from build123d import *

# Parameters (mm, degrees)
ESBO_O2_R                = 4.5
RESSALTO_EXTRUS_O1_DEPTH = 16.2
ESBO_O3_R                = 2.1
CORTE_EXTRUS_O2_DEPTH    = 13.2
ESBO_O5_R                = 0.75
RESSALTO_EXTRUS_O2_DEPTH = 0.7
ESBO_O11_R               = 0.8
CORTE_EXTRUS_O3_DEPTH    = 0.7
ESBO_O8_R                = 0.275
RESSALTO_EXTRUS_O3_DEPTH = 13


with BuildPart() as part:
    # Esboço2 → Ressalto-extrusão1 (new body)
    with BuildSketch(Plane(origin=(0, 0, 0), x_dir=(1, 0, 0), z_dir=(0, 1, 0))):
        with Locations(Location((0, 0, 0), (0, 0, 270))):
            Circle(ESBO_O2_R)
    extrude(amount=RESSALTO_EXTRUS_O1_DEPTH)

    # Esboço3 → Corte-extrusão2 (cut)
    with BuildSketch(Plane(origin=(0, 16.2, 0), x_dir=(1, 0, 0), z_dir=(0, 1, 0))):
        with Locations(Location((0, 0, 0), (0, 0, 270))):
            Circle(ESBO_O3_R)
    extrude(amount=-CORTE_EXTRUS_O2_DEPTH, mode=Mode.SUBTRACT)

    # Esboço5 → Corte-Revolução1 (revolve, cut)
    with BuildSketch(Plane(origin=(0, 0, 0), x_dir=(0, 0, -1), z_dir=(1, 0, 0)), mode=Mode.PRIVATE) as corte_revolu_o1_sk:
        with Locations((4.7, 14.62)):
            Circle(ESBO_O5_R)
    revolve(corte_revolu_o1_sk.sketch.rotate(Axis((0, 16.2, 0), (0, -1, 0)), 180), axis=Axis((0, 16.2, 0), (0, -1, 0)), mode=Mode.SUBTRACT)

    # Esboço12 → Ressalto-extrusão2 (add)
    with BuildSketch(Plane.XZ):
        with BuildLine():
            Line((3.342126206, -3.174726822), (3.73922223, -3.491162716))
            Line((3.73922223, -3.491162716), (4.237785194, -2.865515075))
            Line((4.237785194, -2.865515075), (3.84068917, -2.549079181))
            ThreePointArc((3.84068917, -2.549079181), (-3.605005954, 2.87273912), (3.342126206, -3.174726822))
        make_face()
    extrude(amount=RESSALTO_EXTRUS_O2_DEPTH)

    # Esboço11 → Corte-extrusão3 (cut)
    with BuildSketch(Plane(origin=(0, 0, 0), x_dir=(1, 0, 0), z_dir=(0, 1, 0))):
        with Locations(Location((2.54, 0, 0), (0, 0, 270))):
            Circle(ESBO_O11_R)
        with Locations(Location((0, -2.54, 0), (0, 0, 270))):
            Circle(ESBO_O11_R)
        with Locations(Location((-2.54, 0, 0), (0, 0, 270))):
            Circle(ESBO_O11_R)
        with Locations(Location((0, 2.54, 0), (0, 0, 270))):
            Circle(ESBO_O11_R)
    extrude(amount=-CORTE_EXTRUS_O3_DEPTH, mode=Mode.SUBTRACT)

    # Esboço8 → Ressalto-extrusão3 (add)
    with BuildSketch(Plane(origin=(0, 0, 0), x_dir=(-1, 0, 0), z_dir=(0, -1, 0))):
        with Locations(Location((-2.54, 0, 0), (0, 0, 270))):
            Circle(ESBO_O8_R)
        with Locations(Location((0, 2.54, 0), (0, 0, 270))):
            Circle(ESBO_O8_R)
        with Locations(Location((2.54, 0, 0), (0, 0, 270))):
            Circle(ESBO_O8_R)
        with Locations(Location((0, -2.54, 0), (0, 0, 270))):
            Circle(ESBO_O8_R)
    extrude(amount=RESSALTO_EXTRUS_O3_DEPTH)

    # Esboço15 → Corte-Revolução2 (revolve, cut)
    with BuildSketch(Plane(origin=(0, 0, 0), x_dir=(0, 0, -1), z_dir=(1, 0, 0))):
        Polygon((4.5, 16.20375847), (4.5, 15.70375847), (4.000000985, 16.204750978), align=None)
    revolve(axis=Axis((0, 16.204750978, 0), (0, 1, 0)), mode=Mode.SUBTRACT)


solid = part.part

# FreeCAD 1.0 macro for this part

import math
import FreeCAD as App
import Part
import Sketcher

V = App.Vector
Q = App.Units.Quantity

doc = App.newDocument("Part")
params = doc.addObject("Spreadsheet::Sheet", "Params")
for row, (alias, value) in enumerate([
    ("sketch1_diameter", "9 mm"),
    ("pad1_length", "16.2 mm"),
    ("sketch2_diameter", "4.2 mm"),
    ("pocket1_length", "13.2 mm"),
    ("sketch3_diameter", "1.5 mm"),
    ("groove_angle", "360 deg"),
    ("sketch4_length", "0.8 mm"),
    ("pad2_length", "0.7 mm"),
    ("sketch5_diameter", "1.6 mm"),
    ("pocket2_length", "0.7 mm"),
    ("sketch6_diameter", "0.55 mm"),
    ("pad3_length", "13 mm"),
    ("sketch7_width", "0.5 mm"),
    ("sketch7_length", "0.5 mm"),
    ("groove2_angle", "360 deg"),
], start=1):
    params.set(f"A{row}", alias)
    params.set(f"B{row}", "=" + value)
    params.setAlias(f"B{row}", alias)

body = doc.addObject("PartDesign::Body", "Body")

sketch1 = body.newObject("Sketcher::SketchObject", "Sketch")
sketch1.AttachmentSupport = (doc.getObject("XZ_Plane"), [""])
sketch1.MapMode = "FlatFace"
sketch1.addGeometry(Part.Circle(V(0, 0, 0), V(0, 0, 1), 4.5), False)
sketch1.addConstraint([
    Sketcher.Constraint("Coincident", 0, 3, -1, 1),
    Sketcher.Constraint("Diameter", 0, Q("9 mm")),
])
sketch1.setExpression("Constraints[1]", "Params.sketch1_diameter")
pad1 = body.newObject("PartDesign::Pad", "Pad")
pad1.Profile = sketch1
pad1.setExpression("Length", "Params.pad1_length")
pad1.Reversed = True

sketch2 = body.newObject("Sketcher::SketchObject", "Sketch001")
sketch2.AttachmentSupport = (doc.getObject("XZ_Plane"), [""])
sketch2.MapMode = "FlatFace"
sketch2.AttachmentOffset = App.Placement(V(0, 0, -16.2), App.Rotation())
sketch2.addGeometry(Part.Circle(V(0, 0, 0), V(0, 0, 1), 2.1), False)
sketch2.addConstraint([
    Sketcher.Constraint("Coincident", 0, 3, -1, 1),
    Sketcher.Constraint("Diameter", 0, Q("4.2 mm")),
])
sketch2.setExpression("Constraints[1]", "Params.sketch2_diameter")
pocket1 = body.newObject("PartDesign::Pocket", "Pocket")
pocket1.Profile = sketch2
pocket1.setExpression("Length", "Params.pocket1_length")
pocket1.Reversed = True

sketch3 = body.newObject("Sketcher::SketchObject", "Sketch002")
sketch3.AttachmentSupport = (doc.getObject("YZ_Plane"), [""])
sketch3.MapMode = "FlatFace"
sketch3.addGeometry(Part.Circle(V(14.62, -4.7, 0), V(0, 0, 1), 0.75), False)
sketch3.addConstraint([
    Sketcher.Constraint("Diameter", 0, Q("1.5 mm")),
    Sketcher.Constraint("DistanceY", 0, 3, -1, 1, Q("4.7 mm")),
    Sketcher.Constraint("DistanceX", -1, 1, 0, 3, Q("14.62 mm")),
])
sketch3.setExpression("Constraints[0]", "Params.sketch3_diameter")
groove = body.newObject("PartDesign::Groove", "Groove")
groove.Profile = sketch3
groove.ReferenceAxis = (sketch3, ["H_Axis"])
groove.setExpression("Angle", "Params.groove_angle")

sketch4 = body.newObject("Sketcher::SketchObject", "Sketch003")
sketch4.AttachmentSupport = (doc.getObject("XZ_Plane"), [""])
sketch4.MapMode = "FlatFace"
sketch4.addGeometry([
    Part.LineSegment(V(3.342126, -3.174727, 0), V(3.739222, -3.491163, 0)),
    Part.LineSegment(V(3.739222, -3.491163, 0), V(4.237785, -2.865515, 0)),
    Part.LineSegment(V(4.237785, -2.865515, 0), V(3.840689, -2.549079, 0)),
    Part.ArcOfCircle(Part.Circle(V(0, 0, 0), V(0, 0, 1), 4.609631), math.radians(-33.572372), math.radians(316.471442)),
], False)
sketch4.addConstraint([
    Sketcher.Constraint("Coincident", 0, 2, 1, 1),
    Sketcher.Constraint("Coincident", 1, 2, 2, 1),
    Sketcher.Constraint("Coincident", 2, 2, 3, 1),
    Sketcher.Constraint("Coincident", 3, 2, 0, 1),
    Sketcher.Constraint("Coincident", 3, 3, -1, 1),
    Sketcher.Constraint("Perpendicular", 0, 1),
    Sketcher.Constraint("Perpendicular", 1, 2),
    Sketcher.Constraint("Equal", 0, 2),
    Sketcher.Constraint("Distance", 1, Q("0.8 mm")),
    Sketcher.Constraint("Radius", 3, Q("4.609631 mm")),
    Sketcher.Constraint("DistanceX", -1, 1, 2, 2, Q("3.840689 mm")),
    Sketcher.Constraint("DistanceX", 3, 2, 1, 2, Q("0.895659 mm")),
])
sketch4.setExpression("Constraints[8]", "Params.sketch4_length")
pad2 = body.newObject("PartDesign::Pad", "Pad001")
pad2.Profile = sketch4
pad2.setExpression("Length", "Params.pad2_length")

sketch5 = body.newObject("Sketcher::SketchObject", "Sketch004")
sketch5.AttachmentSupport = (doc.getObject("XZ_Plane"), [""])
sketch5.MapMode = "FlatFace"
sketch5.addGeometry([
    Part.Circle(V(2.54, 0, 0), V(0, 0, 1), 0.8),
    Part.Circle(V(0, 2.54, 0), V(0, 0, 1), 0.8),
    Part.Circle(V(-2.54, 0, 0), V(0, 0, 1), 0.8),
    Part.Circle(V(0, -2.54, 0), V(0, 0, 1), 0.8),
], False)
sketch5.addConstraint([
    Sketcher.Constraint("Equal", 0, 1),
    Sketcher.Constraint("Equal", 1, 2),
    Sketcher.Constraint("Equal", 2, 3),
    Sketcher.Constraint("Symmetric", 0, 3, 2, 3, -1, 1),
    Sketcher.Constraint("Symmetric", 1, 3, 3, 3, -1, 1),
    Sketcher.Constraint("PointOnObject", 0, 3, -1),
    Sketcher.Constraint("PointOnObject", 1, 3, -2),
    Sketcher.Constraint("Diameter", 0, Q("1.6 mm")),
    Sketcher.Constraint("DistanceX", -1, 1, 0, 3, Q("2.54 mm")),
    Sketcher.Constraint("DistanceY", -1, 1, 1, 3, Q("2.54 mm")),
])
sketch5.setExpression("Constraints[7]", "Params.sketch5_diameter")
pocket2 = body.newObject("PartDesign::Pocket", "Pocket001")
pocket2.Profile = sketch5
pocket2.setExpression("Length", "Params.pocket2_length")
pocket2.Reversed = True

sketch6 = body.newObject("Sketcher::SketchObject", "Sketch005")
sketch6.AttachmentSupport = (doc.getObject("XZ_Plane"), [""])
sketch6.MapMode = "FlatFace"
sketch6.addGeometry([
    Part.Circle(V(2.54, 0, 0), V(0, 0, 1), 0.275),
    Part.Circle(V(0, -2.54, 0), V(0, 0, 1), 0.275),
    Part.Circle(V(-2.54, 0, 0), V(0, 0, 1), 0.275),
    Part.Circle(V(0, 2.54, 0), V(0, 0, 1), 0.275),
], False)
sketch6.addConstraint([
    Sketcher.Constraint("Equal", 0, 1),
    Sketcher.Constraint("Equal", 1, 2),
    Sketcher.Constraint("Equal", 2, 3),
    Sketcher.Constraint("Symmetric", 0, 3, 2, 3, -1, 1),
    Sketcher.Constraint("Symmetric", 1, 3, 3, 3, -1, 1),
    Sketcher.Constraint("PointOnObject", 0, 3, -1),
    Sketcher.Constraint("PointOnObject", 1, 3, -2),
    Sketcher.Constraint("Diameter", 0, Q("0.55 mm")),
    Sketcher.Constraint("DistanceX", -1, 1, 0, 3, Q("2.54 mm")),
    Sketcher.Constraint("DistanceY", 1, 3, -1, 1, Q("2.54 mm")),
])
sketch6.setExpression("Constraints[7]", "Params.sketch6_diameter")
pad3 = body.newObject("PartDesign::Pad", "Pad002")
pad3.Profile = sketch6
pad3.setExpression("Length", "Params.pad3_length")

sketch7 = body.newObject("Sketcher::SketchObject", "Sketch006")
sketch7.AttachmentSupport = (doc.getObject("YZ_Plane"), [""])
sketch7.MapMode = "FlatFace"
sketch7.addGeometry([
    Part.LineSegment(V(15.703758, -4.5, 0), V(16.203758, -4.5, 0)),
    Part.LineSegment(V(16.203758, -4.5, 0), V(16.204751, -4.000001, 0)),
    Part.LineSegment(V(16.204751, -4.000001, 0), V(15.703758, -4.5, 0)),
], False)
sketch7.addConstraint([
    Sketcher.Constraint("Coincident", 0, 2, 1, 1),
    Sketcher.Constraint("Coincident", 1, 2, 2, 1),
    Sketcher.Constraint("Coincident", 2, 2, 0, 1),
    Sketcher.Constraint("Horizontal", 0),
    Sketcher.Constraint("DistanceX", 0, 1, 0, 2, Q("0.5 mm")),
    Sketcher.Constraint("DistanceY", 1, 2, -1, 1, Q("4.000001 mm")),
    Sketcher.Constraint("Distance", 1, Q("0.5 mm")),
    Sketcher.Constraint("Distance", 2, Q("0.707808 mm")),
    Sketcher.Constraint("DistanceX", -1, 1, 0, 2, Q("16.203758 mm")),
])
sketch7.setExpression("Constraints[4]", "Params.sketch7_width")
sketch7.setExpression("Constraints[6]", "Params.sketch7_length")
groove2 = body.newObject("PartDesign::Groove", "Groove001")
groove2.Profile = sketch7
groove2.ReferenceAxis = (sketch7, ["H_Axis"])
groove2.setExpression("Angle", "Params.groove2_angle")

doc.recompute()
